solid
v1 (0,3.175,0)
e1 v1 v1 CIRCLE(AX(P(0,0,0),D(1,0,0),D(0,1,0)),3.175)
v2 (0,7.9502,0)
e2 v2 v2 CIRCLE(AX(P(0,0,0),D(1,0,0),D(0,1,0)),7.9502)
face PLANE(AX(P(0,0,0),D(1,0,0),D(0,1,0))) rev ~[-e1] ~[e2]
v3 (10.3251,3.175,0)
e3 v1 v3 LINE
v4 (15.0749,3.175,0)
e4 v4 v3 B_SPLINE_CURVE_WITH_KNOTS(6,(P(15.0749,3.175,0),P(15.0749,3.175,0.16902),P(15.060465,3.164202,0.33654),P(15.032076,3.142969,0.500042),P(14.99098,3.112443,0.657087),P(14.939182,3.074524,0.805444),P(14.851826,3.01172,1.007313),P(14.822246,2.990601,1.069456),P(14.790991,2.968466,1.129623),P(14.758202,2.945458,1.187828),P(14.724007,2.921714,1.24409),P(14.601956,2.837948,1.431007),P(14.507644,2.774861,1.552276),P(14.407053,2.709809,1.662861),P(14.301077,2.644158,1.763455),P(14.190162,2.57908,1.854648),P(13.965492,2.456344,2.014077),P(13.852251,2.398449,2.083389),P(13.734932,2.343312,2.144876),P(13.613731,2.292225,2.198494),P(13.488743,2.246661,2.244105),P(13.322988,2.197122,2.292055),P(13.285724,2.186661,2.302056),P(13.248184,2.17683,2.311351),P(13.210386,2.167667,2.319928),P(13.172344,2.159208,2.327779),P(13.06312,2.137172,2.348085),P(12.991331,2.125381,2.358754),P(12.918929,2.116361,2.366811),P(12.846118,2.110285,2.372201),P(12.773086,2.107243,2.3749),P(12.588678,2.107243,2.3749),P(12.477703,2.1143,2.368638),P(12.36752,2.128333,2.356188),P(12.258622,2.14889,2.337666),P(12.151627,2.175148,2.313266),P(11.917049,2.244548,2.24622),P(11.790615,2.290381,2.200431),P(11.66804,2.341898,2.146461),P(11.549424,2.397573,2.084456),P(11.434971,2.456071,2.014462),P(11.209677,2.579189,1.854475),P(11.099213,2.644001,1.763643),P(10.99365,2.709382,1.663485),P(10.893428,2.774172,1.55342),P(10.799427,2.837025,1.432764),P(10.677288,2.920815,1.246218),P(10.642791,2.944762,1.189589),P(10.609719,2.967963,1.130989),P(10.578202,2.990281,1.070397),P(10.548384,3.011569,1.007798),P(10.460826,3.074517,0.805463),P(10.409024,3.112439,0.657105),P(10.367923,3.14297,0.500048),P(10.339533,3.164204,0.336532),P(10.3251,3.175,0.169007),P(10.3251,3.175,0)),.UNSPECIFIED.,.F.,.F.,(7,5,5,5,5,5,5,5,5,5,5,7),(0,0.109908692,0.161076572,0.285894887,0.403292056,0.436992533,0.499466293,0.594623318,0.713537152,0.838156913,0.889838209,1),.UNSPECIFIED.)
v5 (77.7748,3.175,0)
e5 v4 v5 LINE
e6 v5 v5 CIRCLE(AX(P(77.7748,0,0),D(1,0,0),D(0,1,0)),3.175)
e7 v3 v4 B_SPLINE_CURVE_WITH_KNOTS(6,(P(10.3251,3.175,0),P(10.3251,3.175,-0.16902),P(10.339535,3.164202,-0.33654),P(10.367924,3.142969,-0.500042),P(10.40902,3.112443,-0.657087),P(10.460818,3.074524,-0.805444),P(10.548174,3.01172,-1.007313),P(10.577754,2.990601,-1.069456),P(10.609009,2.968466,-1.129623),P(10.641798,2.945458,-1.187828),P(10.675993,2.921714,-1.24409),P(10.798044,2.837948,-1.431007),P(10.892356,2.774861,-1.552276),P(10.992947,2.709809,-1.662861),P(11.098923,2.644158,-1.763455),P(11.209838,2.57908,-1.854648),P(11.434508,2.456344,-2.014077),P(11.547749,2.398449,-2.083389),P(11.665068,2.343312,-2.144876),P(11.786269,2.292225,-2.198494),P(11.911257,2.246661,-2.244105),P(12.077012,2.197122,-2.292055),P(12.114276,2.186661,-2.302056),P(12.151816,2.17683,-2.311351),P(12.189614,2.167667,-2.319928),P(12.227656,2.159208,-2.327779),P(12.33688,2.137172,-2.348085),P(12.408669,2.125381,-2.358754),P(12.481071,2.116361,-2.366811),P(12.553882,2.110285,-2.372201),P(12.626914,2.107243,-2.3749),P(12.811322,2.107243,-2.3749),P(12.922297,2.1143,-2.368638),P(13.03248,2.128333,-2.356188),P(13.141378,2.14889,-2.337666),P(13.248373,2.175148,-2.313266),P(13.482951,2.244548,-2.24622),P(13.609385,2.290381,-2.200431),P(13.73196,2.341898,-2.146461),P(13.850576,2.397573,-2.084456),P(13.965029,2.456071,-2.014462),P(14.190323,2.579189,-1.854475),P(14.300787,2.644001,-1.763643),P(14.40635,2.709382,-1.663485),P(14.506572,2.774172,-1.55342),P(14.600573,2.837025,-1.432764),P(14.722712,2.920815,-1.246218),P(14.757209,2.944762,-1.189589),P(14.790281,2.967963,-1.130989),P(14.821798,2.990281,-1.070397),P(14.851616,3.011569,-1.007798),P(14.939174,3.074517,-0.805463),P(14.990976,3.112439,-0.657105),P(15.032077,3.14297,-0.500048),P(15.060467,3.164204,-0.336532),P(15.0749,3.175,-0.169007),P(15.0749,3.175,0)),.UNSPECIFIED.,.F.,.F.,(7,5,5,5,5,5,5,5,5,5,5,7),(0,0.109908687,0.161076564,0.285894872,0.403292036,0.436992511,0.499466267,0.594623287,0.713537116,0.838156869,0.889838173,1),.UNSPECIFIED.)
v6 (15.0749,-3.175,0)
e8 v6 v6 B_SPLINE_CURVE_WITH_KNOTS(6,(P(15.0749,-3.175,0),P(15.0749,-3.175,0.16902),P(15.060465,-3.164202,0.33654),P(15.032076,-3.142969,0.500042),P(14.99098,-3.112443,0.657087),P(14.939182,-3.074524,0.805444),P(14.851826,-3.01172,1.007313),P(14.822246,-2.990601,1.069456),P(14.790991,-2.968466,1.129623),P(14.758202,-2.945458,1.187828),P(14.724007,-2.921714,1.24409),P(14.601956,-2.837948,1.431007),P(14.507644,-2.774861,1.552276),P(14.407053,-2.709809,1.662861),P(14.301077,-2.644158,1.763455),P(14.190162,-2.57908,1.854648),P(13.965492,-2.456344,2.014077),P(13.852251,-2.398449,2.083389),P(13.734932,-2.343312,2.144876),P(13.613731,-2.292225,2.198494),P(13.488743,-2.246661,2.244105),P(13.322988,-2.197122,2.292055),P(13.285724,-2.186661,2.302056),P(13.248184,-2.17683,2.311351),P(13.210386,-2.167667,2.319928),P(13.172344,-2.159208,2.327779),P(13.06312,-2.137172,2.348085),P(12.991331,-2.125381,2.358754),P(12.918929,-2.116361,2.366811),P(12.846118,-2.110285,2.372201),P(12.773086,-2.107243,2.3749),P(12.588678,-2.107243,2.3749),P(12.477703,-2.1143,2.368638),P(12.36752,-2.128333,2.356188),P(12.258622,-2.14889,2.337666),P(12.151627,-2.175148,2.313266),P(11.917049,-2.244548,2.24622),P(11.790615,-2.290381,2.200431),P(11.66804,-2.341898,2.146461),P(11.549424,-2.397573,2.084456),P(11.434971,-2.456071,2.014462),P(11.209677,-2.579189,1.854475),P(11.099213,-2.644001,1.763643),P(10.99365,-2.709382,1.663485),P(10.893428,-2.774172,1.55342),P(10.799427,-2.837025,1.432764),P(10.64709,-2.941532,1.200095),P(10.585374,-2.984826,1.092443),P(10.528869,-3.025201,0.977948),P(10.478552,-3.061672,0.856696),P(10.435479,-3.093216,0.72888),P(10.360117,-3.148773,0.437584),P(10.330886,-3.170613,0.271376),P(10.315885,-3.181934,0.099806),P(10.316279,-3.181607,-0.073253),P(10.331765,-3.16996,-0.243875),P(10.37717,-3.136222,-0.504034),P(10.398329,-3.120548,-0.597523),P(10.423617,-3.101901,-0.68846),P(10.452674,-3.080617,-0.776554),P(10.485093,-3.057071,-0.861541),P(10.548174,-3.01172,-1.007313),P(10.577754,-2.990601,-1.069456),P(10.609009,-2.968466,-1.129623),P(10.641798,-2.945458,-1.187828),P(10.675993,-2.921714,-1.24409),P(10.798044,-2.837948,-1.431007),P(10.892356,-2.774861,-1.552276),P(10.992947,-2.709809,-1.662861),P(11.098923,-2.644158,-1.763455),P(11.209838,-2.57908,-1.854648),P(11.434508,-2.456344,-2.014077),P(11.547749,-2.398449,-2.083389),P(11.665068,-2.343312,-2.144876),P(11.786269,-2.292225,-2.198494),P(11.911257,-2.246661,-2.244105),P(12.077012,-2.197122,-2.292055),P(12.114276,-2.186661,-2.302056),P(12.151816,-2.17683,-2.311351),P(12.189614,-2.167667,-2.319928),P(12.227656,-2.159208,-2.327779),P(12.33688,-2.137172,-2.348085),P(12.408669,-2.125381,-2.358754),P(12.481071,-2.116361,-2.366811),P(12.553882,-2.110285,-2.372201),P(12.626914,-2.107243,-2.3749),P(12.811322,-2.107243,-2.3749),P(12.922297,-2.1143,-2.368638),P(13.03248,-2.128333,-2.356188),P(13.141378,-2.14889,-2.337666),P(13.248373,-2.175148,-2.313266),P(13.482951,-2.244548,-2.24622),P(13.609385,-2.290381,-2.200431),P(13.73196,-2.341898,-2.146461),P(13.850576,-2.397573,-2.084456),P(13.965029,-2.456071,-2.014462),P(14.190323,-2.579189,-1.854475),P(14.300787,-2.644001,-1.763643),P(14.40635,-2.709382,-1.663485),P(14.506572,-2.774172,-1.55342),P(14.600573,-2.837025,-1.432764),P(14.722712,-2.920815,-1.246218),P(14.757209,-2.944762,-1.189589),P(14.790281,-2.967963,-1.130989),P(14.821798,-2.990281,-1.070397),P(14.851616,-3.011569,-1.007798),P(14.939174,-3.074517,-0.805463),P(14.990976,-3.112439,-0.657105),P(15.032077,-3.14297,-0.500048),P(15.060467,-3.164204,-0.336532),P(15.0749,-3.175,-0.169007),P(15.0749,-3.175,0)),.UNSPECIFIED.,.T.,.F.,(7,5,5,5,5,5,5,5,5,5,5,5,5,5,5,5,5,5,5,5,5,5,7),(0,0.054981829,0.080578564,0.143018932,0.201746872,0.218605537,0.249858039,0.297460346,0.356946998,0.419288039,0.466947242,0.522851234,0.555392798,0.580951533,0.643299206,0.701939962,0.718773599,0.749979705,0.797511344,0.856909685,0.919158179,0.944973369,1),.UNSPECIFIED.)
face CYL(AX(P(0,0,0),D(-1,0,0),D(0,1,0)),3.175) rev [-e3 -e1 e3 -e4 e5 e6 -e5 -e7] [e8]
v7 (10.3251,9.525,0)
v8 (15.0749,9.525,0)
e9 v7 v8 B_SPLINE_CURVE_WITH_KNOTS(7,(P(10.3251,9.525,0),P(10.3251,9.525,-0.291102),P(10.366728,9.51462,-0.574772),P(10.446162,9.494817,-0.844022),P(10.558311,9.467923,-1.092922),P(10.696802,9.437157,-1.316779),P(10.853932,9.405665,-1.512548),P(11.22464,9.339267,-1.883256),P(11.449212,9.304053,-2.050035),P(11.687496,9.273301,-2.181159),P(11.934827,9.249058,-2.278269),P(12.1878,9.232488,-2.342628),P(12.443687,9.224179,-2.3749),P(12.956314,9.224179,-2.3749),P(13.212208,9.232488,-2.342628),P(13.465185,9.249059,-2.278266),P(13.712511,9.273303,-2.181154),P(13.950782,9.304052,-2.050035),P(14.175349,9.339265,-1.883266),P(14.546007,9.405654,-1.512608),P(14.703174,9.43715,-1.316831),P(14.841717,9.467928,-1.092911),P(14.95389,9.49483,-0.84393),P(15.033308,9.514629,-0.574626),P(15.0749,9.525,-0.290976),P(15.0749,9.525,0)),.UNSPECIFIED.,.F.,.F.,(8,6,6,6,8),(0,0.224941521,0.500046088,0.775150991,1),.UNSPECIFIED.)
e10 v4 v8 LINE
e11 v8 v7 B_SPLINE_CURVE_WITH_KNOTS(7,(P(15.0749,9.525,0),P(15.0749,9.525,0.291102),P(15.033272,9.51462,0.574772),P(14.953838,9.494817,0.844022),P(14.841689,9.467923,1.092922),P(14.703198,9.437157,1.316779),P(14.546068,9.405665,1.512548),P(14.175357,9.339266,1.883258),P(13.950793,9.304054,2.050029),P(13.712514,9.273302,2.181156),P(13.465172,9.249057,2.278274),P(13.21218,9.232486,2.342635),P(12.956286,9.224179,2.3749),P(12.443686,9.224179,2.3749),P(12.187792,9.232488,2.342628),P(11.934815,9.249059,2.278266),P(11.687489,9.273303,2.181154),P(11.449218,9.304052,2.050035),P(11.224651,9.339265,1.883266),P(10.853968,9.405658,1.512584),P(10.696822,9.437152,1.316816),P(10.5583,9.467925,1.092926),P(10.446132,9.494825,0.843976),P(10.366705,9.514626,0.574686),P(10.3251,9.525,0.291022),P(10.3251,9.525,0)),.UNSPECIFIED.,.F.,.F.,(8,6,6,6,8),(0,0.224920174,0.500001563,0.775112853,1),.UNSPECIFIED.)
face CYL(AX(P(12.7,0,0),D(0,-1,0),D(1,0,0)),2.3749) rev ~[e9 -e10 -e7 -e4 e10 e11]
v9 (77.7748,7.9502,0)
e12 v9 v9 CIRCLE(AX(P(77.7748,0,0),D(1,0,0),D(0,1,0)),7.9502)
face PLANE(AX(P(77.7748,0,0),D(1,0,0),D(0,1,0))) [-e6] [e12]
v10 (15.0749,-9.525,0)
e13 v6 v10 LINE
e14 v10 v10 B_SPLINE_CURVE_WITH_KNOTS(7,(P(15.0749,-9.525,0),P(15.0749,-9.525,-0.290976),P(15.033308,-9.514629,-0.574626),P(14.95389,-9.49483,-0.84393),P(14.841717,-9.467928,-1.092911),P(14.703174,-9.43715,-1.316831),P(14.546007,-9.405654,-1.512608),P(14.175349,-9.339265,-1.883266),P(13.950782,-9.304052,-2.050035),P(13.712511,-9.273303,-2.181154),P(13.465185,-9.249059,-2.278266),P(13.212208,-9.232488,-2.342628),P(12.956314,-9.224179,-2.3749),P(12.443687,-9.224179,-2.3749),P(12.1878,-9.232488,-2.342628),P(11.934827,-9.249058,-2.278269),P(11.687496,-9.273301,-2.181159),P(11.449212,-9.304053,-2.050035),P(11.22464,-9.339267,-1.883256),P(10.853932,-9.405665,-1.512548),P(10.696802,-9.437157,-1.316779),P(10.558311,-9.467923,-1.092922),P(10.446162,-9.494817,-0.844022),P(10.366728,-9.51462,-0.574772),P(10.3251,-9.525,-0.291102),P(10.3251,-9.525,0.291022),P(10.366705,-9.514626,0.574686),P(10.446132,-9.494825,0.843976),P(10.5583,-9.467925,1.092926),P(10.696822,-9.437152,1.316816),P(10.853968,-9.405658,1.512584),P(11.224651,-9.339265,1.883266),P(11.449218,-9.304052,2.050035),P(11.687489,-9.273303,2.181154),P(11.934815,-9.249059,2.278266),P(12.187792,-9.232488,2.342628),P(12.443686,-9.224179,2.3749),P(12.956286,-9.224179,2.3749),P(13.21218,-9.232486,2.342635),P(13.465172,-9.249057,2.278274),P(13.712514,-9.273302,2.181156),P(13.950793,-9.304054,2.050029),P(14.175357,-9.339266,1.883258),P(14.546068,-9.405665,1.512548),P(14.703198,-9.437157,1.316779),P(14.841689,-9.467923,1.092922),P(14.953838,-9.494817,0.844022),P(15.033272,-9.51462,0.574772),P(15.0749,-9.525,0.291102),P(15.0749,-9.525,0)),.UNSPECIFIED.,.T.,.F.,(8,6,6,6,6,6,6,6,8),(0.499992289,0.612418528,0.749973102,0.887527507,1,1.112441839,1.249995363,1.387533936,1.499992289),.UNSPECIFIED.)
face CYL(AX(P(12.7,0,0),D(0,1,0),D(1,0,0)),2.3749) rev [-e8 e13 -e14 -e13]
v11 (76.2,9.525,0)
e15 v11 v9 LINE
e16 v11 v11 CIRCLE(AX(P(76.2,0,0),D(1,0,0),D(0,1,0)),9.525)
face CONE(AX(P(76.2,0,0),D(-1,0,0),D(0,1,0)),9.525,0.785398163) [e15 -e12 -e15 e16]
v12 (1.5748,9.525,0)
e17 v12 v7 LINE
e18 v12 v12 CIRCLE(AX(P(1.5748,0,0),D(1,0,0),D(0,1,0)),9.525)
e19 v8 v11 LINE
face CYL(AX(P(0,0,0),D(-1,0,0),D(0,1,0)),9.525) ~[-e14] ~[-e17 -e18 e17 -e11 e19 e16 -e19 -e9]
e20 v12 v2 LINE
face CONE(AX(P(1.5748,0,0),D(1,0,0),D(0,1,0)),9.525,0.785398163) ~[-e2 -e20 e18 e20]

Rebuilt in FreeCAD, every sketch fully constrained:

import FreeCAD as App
import Part
import Sketcher

V = App.Vector
Q = App.Units.Quantity


def edges_at(feature, points):
    """Names of the edges that pass closest to the given points."""
    edges = feature.Shape.Edges
    near = lambda p: min(range(len(edges)), key=lambda i: edges[i].distToShape(Part.Vertex(*p))[0])
    return sorted({f"Edge{near(p) + 1}" for p in points})

doc = App.newDocument("Part")
body = doc.addObject("PartDesign::Body", "Body")

# Sketch on YZ plane
sketch1 = body.newObject("Sketcher::SketchObject", "Sketch")
sketch1.AttachmentSupport = (doc.getObject("YZ_Plane"), [""])
sketch1.MapMode = "FlatFace"
sketch1.addGeometry([
    Part.Circle(V(0, 0, 0), V(0, 0, 1), 9.5),
    Part.Circle(V(0, 0, 0), V(0, 0, 1), 3.2),
], False)
sketch1.addConstraint([
    Sketcher.Constraint("Coincident", 0, 3, -1, 1),
    Sketcher.Constraint("Coincident", 1, 3, -1, 1),
    Sketcher.Constraint("Diameter", 0, Q("0.75 in")),
    Sketcher.Constraint("Diameter", 1, Q("0.25 in")),
])
pad1 = body.newObject("PartDesign::Pad", "Pad")
pad1.Profile = sketch1
pad1.Length = Q("3.062 in")

# Sketch on XZ plane
sketch2 = body.newObject("Sketcher::SketchObject", "Sketch001")
sketch2.AttachmentSupport = (doc.getObject("XZ_Plane"), [""])
sketch2.MapMode = "FlatFace"
sketch2.addGeometry(Part.Circle(V(12.7, 0, 0), V(0, 0, 1), 2.4), False)
sketch2.addConstraint([
    Sketcher.Constraint("PointOnObject", 0, 3, -1),
    Sketcher.Constraint("Diameter", 0, Q("0.187 in")),
    Sketcher.Constraint("DistanceX", -1, 1, 0, 3, Q("0.5 in")),
])
pocket1 = body.newObject("PartDesign::Pocket", "Pocket")
pocket1.Profile = sketch2
pocket1.Type = "ThroughAll"
pocket1.Midplane = True
doc.recompute()

chamfer = body.newObject("PartDesign::Chamfer", "Chamfer")
chamfer.Base = (pocket1, edges_at(pocket1, [(0, -9.525, 0), (77.775, -9.525, 0)]))
chamfer.ChamferType = "Two distances"
chamfer.Size = Q("0.062 in")
chamfer.Size2 = Q("0.062 in")

doc.recompute()
